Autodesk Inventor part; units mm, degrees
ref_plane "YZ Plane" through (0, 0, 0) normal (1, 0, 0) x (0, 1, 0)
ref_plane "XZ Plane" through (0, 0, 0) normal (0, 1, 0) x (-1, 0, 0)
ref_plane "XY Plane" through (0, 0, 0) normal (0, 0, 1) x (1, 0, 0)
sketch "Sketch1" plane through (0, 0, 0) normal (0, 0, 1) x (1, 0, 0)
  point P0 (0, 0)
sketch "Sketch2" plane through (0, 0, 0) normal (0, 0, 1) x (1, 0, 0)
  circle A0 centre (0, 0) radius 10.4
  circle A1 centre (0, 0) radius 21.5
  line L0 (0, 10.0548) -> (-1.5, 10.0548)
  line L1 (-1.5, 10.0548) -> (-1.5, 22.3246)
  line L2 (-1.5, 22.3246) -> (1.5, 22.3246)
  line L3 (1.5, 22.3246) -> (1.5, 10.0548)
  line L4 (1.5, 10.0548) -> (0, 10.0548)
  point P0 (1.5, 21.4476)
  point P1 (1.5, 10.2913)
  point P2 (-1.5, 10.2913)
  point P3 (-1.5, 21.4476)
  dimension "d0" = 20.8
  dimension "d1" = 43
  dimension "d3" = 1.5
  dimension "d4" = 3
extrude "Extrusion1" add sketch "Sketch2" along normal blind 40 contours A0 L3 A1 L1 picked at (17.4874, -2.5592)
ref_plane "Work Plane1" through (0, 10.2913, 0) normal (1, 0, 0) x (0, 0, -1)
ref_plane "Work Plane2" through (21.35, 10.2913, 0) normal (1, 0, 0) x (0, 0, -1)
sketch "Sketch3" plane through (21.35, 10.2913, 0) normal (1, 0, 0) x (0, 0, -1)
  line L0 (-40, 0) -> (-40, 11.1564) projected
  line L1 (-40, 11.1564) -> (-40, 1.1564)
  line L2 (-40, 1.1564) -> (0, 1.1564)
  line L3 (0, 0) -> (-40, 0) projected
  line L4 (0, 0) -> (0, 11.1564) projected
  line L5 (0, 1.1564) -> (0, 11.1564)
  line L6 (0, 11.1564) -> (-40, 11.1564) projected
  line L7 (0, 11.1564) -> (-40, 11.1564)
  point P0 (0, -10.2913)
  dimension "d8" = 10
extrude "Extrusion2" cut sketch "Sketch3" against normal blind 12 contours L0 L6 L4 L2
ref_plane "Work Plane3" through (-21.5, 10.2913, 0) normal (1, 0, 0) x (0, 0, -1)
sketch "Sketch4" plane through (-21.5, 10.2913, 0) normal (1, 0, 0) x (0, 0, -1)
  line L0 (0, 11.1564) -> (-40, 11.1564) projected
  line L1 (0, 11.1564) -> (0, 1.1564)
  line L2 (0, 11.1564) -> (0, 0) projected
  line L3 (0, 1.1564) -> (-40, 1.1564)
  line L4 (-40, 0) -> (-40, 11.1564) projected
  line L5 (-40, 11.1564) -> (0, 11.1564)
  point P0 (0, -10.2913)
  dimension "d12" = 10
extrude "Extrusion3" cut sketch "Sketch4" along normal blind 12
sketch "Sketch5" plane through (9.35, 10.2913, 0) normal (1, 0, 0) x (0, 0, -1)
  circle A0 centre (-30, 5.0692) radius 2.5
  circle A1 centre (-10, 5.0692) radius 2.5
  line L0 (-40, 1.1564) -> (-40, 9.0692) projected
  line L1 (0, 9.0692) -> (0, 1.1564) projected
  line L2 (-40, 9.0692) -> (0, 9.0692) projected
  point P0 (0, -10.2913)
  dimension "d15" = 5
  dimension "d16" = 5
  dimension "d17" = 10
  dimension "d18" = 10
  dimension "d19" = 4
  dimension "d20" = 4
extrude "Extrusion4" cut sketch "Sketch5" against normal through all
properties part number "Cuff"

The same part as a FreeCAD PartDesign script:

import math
import FreeCAD as App
import Part
import Sketcher

V = App.Vector
Q = App.Units.Quantity


def add_polygon(sketch, points):
    """Adds a closed chain of lines whose ends are joined by coincident constraints."""
    first, n = sketch.GeometryCount, len(points)
    for a, b in zip(points, points[1:] + points[:1]):
        sketch.addGeometry(Part.LineSegment(App.Vector(*a, 0), App.Vector(*b, 0)), False)
    for i in range(n):
        sketch.addConstraint(Sketcher.Constraint("Coincident", first + i, 2, first + (i + 1) % n, 1))

doc = App.newDocument("Part")
body = doc.addObject("PartDesign::Body", "Body")

# Sketch on XY plane
sketch1 = body.newObject("Sketcher::SketchObject", "Sketch")
sketch1.AttachmentSupport = (doc.getObject("XY_Plane"), [""])
sketch1.MapMode = "FlatFace"
sketch1.addGeometry([
    Part.ArcOfCircle(Part.Circle(V(0, 0, 0), V(0, 0, 1), 10.4), math.radians(98), math.radians(442)),
    Part.LineSegment(V(-1.5, 10.3, 0), V(-1.5, 21.4, 0)),
    Part.ArcOfCircle(Part.Circle(V(0, 0, 0), V(0, 0, 1), 21.5), math.radians(94), math.radians(446)),
    Part.LineSegment(V(1.5, 21.4, 0), V(1.5, 10.3, 0)),
], False)
sketch1.addConstraint([
    Sketcher.Constraint("Coincident", 0, 1, 1, 1),
    Sketcher.Constraint("Coincident", 1, 2, 2, 1),
    Sketcher.Constraint("Coincident", 2, 2, 3, 1),
    Sketcher.Constraint("Coincident", 3, 2, 0, 2),
    Sketcher.Constraint("Vertical", 1),
    Sketcher.Constraint("Vertical", 3),
    Sketcher.Constraint("Coincident", 0, 3, -1, 1),
    Sketcher.Constraint("Coincident", 2, 3, -1, 1),
    Sketcher.Constraint("Horizontal", 1, 2, 2, 2),
    Sketcher.Constraint("Radius", 0, Q("10.4 mm")),
    Sketcher.Constraint("Radius", 2, Q("21.5 mm")),
    Sketcher.Constraint("DistanceX", 1, 2, 2, 2, Q("3 mm")),
])
pad1 = body.newObject("PartDesign::Pad", "Pad")
pad1.Profile = sketch1
pad1.Length = 40

# Sketch on YZ plane
sketch2 = body.newObject("Sketcher::SketchObject", "Sketch001")
sketch2.AttachmentSupport = (doc.getObject("YZ_Plane"), [""])
sketch2.MapMode = "FlatFace"
sketch2.AttachmentOffset = App.Placement(V(0, 0, 21.35), App.Rotation())
add_polygon(sketch2, [(21, 40), (11, 40), (11, 0), (21, 0)])  # lines 0-3
sketch2.addConstraint([
    Sketcher.Constraint("Horizontal", 0),
    Sketcher.Constraint("Vertical", 1),
    Sketcher.Constraint("Horizontal", 2),
    Sketcher.Constraint("Vertical", 3),
    Sketcher.Constraint("PointOnObject", 1, 2, -1),
    Sketcher.Constraint("DistanceX", 0, 2, 0, 1, Q("10 mm")),
    Sketcher.Constraint("DistanceY", 1, 2, 1, 1, Q("40 mm")),
    Sketcher.Constraint("DistanceX", -1, 1, 0, 2, Q("11.4477 mm")),
])
pocket1 = body.newObject("PartDesign::Pocket", "Pocket")
pocket1.Profile = sketch2
pocket1.Length = 12

# Sketch on YZ plane
sketch3 = body.newObject("Sketcher::SketchObject", "Sketch002")
sketch3.AttachmentSupport = (doc.getObject("YZ_Plane"), [""])
sketch3.MapMode = "FlatFace"
sketch3.AttachmentOffset = App.Placement(V(0, 0, -21.5), App.Rotation())
add_polygon(sketch3, [(11, 0), (21, 0), (21, 40), (11, 40)])  # lines 0-3
sketch3.addConstraint([
    Sketcher.Constraint("Horizontal", 0),
    Sketcher.Constraint("Vertical", 1),
    Sketcher.Constraint("Horizontal", 2),
    Sketcher.Constraint("Vertical", 3),
    Sketcher.Constraint("PointOnObject", 0, 2, -1),
    Sketcher.Constraint("DistanceX", 0, 1, 0, 2, Q("10 mm")),
    Sketcher.Constraint("DistanceY", 1, 1, 1, 2, Q("40 mm")),
    Sketcher.Constraint("DistanceX", -1, 1, 0, 2, Q("21.4477 mm")),
])
pocket2 = body.newObject("PartDesign::Pocket", "Pocket001")
pocket2.Profile = sketch3
pocket2.Length = 12
pocket2.Reversed = True

# Sketch on YZ plane
sketch4 = body.newObject("Sketcher::SketchObject", "Sketch003")
sketch4.AttachmentSupport = (doc.getObject("YZ_Plane"), [""])
sketch4.MapMode = "FlatFace"
sketch4.AttachmentOffset = App.Placement(V(0, 0, 9.35), App.Rotation())
sketch4.addGeometry([
    Part.Circle(V(15.4, 30, 0), V(0, 0, 1), 2.5),
    Part.Circle(V(15.4, 10, 0), V(0, 0, 1), 2.5),
], False)
sketch4.addConstraint([
    Sketcher.Constraint("Equal", 0, 1),
    Sketcher.Constraint("Vertical", 0, 3, 1, 3),
    Sketcher.Constraint("Diameter", 0, Q("5 mm")),
    Sketcher.Constraint("DistanceY", -1, 1, 1, 3, Q("10 mm")),
    Sketcher.Constraint("DistanceY", -1, 1, 0, 3, Q("30 mm")),
    Sketcher.Constraint("DistanceX", -1, 1, 0, 3, Q("15.3605 mm")),
])
pocket3 = body.newObject("PartDesign::Pocket", "Pocket002")
pocket3.Profile = sketch4
pocket3.Type = "ThroughAll"

doc.recompute()
